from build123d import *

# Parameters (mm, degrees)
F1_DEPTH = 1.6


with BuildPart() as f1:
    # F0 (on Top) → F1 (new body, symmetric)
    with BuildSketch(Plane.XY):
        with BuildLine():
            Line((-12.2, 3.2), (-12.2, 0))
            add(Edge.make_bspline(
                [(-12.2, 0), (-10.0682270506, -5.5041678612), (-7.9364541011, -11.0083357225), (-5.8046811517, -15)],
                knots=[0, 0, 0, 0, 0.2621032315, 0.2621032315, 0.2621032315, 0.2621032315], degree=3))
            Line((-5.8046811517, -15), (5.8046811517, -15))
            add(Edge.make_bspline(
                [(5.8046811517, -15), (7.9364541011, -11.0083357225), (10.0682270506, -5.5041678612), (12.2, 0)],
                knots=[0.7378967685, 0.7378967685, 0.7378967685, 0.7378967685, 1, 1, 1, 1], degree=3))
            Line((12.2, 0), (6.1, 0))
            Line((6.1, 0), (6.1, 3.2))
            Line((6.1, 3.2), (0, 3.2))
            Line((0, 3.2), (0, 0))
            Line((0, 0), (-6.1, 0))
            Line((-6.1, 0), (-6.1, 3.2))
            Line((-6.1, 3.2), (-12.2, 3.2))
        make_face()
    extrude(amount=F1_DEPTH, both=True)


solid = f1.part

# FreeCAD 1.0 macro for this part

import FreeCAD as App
import Part
import Sketcher

doc = App.newDocument("Part")
body = doc.addObject("PartDesign::Body", "Body")

sketch1 = body.newObject("Sketcher::SketchObject", "Sketch")
sketch1.AttachmentSupport = (doc.getObject("XY_Plane"), [""])
sketch1.MapMode = "FlatFace"
sketch1.addGeometry([
    Part.LineSegment(App.Vector(-12.2, 3.2, 0), App.Vector(-12.2, 0, 0)),
    Part.BSplineCurve([App.Vector(-12.2, 0, 0), App.Vector(-10.068227, -5.504168, 0), App.Vector(-7.936454, -11.008336, 0), App.Vector(-5.804681, -15, 0)], [4, 4], [0, 0.262103231], False, 3, [1, 1, 1, 1], False),
    Part.LineSegment(App.Vector(-5.804681, -15, 0), App.Vector(5.804681, -15, 0)),
    Part.BSplineCurve([App.Vector(5.804681, -15, 0), App.Vector(7.936454, -11.008336, 0), App.Vector(10.068227, -5.504168, 0), App.Vector(12.2, 0, 0)], [4, 4], [0.737896768, 1], False, 3, [1, 1, 1, 1], False),
    Part.LineSegment(App.Vector(12.2, 0, 0), App.Vector(6.1, 0, 0)),
    Part.LineSegment(App.Vector(6.1, 0, 0), App.Vector(6.1, 3.2, 0)),
    Part.LineSegment(App.Vector(6.1, 3.2, 0), App.Vector(0, 3.2, 0)),
    Part.LineSegment(App.Vector(0, 3.2, 0), App.Vector(0, 0, 0)),
    Part.LineSegment(App.Vector(0, 0, 0), App.Vector(-6.1, 0, 0)),
    Part.LineSegment(App.Vector(-6.1, 0, 0), App.Vector(-6.1, 3.2, 0)),
    Part.LineSegment(App.Vector(-6.1, 3.2, 0), App.Vector(-12.2, 3.2, 0)),
], False)
sketch1.addConstraint([
    Sketcher.Constraint("Block", 1),
    Sketcher.Constraint("Block", 3),
    Sketcher.Constraint("Coincident", 0, 2, 1, 1),
    Sketcher.Constraint("Coincident", 1, 2, 2, 1),
    Sketcher.Constraint("Coincident", 2, 2, 3, 1),
    Sketcher.Constraint("Coincident", 3, 2, 4, 1),
    Sketcher.Constraint("Coincident", 4, 2, 5, 1),
    Sketcher.Constraint("Coincident", 5, 2, 6, 1),
    Sketcher.Constraint("Coincident", 6, 2, 7, 1),
    Sketcher.Constraint("Coincident", 7, 2, 8, 1),
    Sketcher.Constraint("Coincident", 8, 2, 9, 1),
    Sketcher.Constraint("Coincident", 9, 2, 10, 1),
    Sketcher.Constraint("Coincident", 10, 2, 0, 1),
    Sketcher.Constraint("Vertical", 0),
    Sketcher.Constraint("Horizontal", 4),
    Sketcher.Constraint("Vertical", 5),
    Sketcher.Constraint("Horizontal", 6),
    Sketcher.Constraint("Vertical", 7),
    Sketcher.Constraint("Horizontal", 8),
    Sketcher.Constraint("Vertical", 9),
    Sketcher.Constraint("Horizontal", 10),
    Sketcher.Constraint("Coincident", 7, 2, -1, 1),
    Sketcher.Constraint("Symmetric", 5, 2, 9, 2, -2),
    Sketcher.Constraint("Equal", 4, 6),
    Sketcher.Constraint("DistanceY", 0, 2, 0, 1, 3.2),
])
pad1 = body.newObject("PartDesign::Pad", "Pad")
pad1.Profile = sketch1
pad1.Length = 3.2
pad1.Midplane = True

doc.recompute()
